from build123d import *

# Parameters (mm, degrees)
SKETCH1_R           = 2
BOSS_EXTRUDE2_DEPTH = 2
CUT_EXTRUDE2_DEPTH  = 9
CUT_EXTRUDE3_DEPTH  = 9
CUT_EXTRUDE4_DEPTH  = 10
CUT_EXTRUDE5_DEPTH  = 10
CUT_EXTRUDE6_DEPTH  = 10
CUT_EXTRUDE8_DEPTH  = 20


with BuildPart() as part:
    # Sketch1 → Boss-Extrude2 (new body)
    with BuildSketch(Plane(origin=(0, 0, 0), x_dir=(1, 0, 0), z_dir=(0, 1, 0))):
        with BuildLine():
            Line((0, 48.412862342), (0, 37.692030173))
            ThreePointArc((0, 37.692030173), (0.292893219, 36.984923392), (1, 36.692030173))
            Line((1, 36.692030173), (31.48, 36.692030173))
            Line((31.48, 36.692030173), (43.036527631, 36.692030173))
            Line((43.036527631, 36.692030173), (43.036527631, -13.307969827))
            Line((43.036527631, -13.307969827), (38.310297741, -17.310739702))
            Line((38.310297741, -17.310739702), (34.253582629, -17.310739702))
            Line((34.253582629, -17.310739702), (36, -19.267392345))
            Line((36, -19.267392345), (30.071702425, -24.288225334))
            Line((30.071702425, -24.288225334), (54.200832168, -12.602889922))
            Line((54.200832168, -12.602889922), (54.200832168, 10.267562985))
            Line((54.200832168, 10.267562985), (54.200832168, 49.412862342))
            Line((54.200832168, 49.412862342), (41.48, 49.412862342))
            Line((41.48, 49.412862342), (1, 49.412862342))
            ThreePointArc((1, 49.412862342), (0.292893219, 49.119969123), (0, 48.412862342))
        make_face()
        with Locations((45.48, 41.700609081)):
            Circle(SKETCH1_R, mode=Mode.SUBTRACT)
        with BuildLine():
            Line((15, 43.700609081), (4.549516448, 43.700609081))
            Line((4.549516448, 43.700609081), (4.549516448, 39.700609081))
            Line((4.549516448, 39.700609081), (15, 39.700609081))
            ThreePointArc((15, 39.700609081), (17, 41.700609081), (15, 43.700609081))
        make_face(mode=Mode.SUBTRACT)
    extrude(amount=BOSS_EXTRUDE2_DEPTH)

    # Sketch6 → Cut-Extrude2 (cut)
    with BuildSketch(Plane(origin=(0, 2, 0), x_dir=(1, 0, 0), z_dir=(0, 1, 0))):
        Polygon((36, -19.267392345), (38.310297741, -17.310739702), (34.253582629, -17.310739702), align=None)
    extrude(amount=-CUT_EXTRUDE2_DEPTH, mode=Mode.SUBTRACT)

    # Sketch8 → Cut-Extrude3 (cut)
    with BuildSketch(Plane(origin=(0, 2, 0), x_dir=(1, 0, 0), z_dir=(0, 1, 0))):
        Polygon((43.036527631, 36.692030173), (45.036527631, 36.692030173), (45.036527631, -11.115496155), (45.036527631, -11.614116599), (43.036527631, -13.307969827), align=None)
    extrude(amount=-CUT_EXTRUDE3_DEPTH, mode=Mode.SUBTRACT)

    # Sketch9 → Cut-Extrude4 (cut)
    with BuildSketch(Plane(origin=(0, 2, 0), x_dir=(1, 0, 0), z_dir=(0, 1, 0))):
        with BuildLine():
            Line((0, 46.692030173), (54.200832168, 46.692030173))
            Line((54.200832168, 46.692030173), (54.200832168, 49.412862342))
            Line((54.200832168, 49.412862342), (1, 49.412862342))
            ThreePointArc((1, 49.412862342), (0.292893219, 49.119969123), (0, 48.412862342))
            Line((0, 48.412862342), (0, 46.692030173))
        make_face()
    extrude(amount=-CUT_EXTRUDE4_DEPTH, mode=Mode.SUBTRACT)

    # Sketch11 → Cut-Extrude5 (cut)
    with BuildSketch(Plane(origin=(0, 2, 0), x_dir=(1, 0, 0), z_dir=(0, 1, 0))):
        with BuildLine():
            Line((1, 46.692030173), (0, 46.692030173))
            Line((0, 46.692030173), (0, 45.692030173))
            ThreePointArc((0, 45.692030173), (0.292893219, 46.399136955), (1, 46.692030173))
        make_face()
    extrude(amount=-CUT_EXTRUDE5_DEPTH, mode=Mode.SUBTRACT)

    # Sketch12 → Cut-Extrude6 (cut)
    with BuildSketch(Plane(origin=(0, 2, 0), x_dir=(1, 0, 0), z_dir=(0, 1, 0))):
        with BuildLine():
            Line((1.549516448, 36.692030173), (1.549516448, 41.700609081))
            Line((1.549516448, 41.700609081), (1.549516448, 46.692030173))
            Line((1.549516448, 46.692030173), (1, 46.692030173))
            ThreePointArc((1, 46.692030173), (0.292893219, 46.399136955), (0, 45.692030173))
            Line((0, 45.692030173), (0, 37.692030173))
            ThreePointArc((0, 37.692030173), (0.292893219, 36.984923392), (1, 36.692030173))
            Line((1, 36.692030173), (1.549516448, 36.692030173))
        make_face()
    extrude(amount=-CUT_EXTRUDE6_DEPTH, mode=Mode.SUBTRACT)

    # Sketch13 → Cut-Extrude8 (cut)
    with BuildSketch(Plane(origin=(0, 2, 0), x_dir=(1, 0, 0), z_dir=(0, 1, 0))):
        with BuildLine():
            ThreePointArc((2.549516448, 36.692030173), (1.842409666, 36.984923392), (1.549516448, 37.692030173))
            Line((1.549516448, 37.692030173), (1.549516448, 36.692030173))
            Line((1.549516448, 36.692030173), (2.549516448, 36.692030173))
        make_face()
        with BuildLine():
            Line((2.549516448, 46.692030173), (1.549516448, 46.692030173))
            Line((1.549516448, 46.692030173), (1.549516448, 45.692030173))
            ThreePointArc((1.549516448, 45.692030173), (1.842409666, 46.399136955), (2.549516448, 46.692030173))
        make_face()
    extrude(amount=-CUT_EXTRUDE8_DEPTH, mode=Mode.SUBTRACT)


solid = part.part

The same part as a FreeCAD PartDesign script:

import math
import FreeCAD as App
import Part
import Sketcher
from FreeCAD import Vector
Q = App.Units.Quantity


def add_polygon(sketch, points):
    """Adds a closed chain of lines whose ends are joined by coincident constraints."""
    first, n = sketch.GeometryCount, len(points)
    for a, b in zip(points, points[1:] + points[:1]):
        sketch.addGeometry(Part.LineSegment(App.Vector(*a, 0), App.Vector(*b, 0)), False)
    for i in range(n):
        sketch.addConstraint(Sketcher.Constraint("Coincident", first + i, 2, first + (i + 1) % n, 1))

doc = App.newDocument("Part")
body = doc.addObject("PartDesign::Body", "Body")

sketch1 = body.newObject("Sketcher::SketchObject", "Sketch")
sketch1.AttachmentSupport = (doc.getObject("XZ_Plane"), [""])
sketch1.MapMode = "FlatFace"
sketch1.addGeometry(Part.LineSegment(Vector(0, -48.4, 0), Vector(0, -37.7, 0)), False)
sketch1.addGeometry(Part.ArcOfCircle(Part.Circle(Vector(1, -37.7, 0), Vector(0, 0, 1), 1), math.radians(90), math.radians(180)), False)
sketch1.addGeometry(Part.LineSegment(Vector(1, -36.7, 0), Vector(43, -36.7, 0)), False)
sketch1.addGeometry(Part.LineSegment(Vector(43, -36.7, 0), Vector(43, 13.3, 0)), False)
sketch1.addGeometry(Part.LineSegment(Vector(43, 13.3, 0), Vector(38.3, 17.3, 0)), False)
sketch1.addGeometry(Part.LineSegment(Vector(38.3, 17.3, 0), Vector(34.3, 17.3, 0)), False)
sketch1.addGeometry(Part.LineSegment(Vector(34.3, 17.3, 0), Vector(36, 19.3, 0)), False)
sketch1.addGeometry(Part.LineSegment(Vector(36, 19.3, 0), Vector(30.1, 24.3, 0)), False)
sketch1.addGeometry(Part.LineSegment(Vector(30.1, 24.3, 0), Vector(54.2, 12.6, 0)), False)
sketch1.addGeometry(Part.LineSegment(Vector(54.2, 12.6, 0), Vector(54.2, -49.4, 0)), False)
sketch1.addGeometry(Part.LineSegment(Vector(54.2, -49.4, 0), Vector(1, -49.4, 0)), False)
sketch1.addGeometry(Part.ArcOfCircle(Part.Circle(Vector(1, -48.4, 0), Vector(0, 0, 1), 1), math.radians(-180), math.radians(-90)), False)
sketch1.addGeometry(Part.LineSegment(Vector(4.5, -43.7, 0), Vector(15, -43.7, 0)), False)
sketch1.addGeometry(Part.ArcOfCircle(Part.Circle(Vector(15, -41.7, 0), Vector(0, 0, 1), 2), math.radians(-90), math.radians(90)), False)
sketch1.addGeometry(Part.LineSegment(Vector(15, -39.7, 0), Vector(4.5, -39.7, 0)), False)
sketch1.addGeometry(Part.LineSegment(Vector(4.5, -39.7, 0), Vector(4.5, -43.7, 0)), False)
sketch1.addGeometry(Part.Circle(Vector(45.5, -41.7, 0), Vector(0, 0, 1), 2), False)
sketch1.addConstraint(Sketcher.Constraint("Tangent", 0, 2, 1, 2))
sketch1.addConstraint(Sketcher.Constraint("Tangent", 1, 1, 2, 1))
sketch1.addConstraint(Sketcher.Constraint("Coincident", 2, 2, 3, 1))
sketch1.addConstraint(Sketcher.Constraint("Coincident", 3, 2, 4, 1))
sketch1.addConstraint(Sketcher.Constraint("Coincident", 4, 2, 5, 1))
sketch1.addConstraint(Sketcher.Constraint("Coincident", 5, 2, 6, 1))
sketch1.addConstraint(Sketcher.Constraint("Coincident", 6, 2, 7, 1))
sketch1.addConstraint(Sketcher.Constraint("Coincident", 7, 2, 8, 1))
sketch1.addConstraint(Sketcher.Constraint("Coincident", 8, 2, 9, 1))
sketch1.addConstraint(Sketcher.Constraint("Coincident", 9, 2, 10, 1))
sketch1.addConstraint(Sketcher.Constraint("Tangent", 10, 2, 11, 2))
sketch1.addConstraint(Sketcher.Constraint("Tangent", 11, 1, 0, 1))
sketch1.addConstraint(Sketcher.Constraint("Tangent", 12, 2, 13, 1))
sketch1.addConstraint(Sketcher.Constraint("Tangent", 13, 2, 14, 1))
sketch1.addConstraint(Sketcher.Constraint("Coincident", 14, 2, 15, 1))
sketch1.addConstraint(Sketcher.Constraint("Coincident", 15, 2, 12, 1))
sketch1.addConstraint(Sketcher.Constraint("Vertical", 0))
sketch1.addConstraint(Sketcher.Constraint("Horizontal", 2))
sketch1.addConstraint(Sketcher.Constraint("Vertical", 3))
sketch1.addConstraint(Sketcher.Constraint("Horizontal", 5))
sketch1.addConstraint(Sketcher.Constraint("Vertical", 9))
sketch1.addConstraint(Sketcher.Constraint("Horizontal", 10))
sketch1.addConstraint(Sketcher.Constraint("Horizontal", 12))
sketch1.addConstraint(Sketcher.Constraint("Horizontal", 14))
sketch1.addConstraint(Sketcher.Constraint("Vertical", 15))
sketch1.addConstraint(Sketcher.Constraint("Equal", 1, 11))
sketch1.addConstraint(Sketcher.Constraint("Equal", 13, 16))
sketch1.addConstraint(Sketcher.Constraint("PointOnObject", 0, 2, -2))
sketch1.addConstraint(Sketcher.Constraint("Parallel", 4, 7))
sketch1.addConstraint(Sketcher.Constraint("Horizontal", 13, 3, 16, 3))
sketch1.addConstraint(Sketcher.Constraint("Diameter", 16, Q("4 mm")))
sketch1.addConstraint(Sketcher.Constraint("Radius", 1, Q("1 mm")))
sketch1.addConstraint(Sketcher.Constraint("DistanceY", 3, 1, 3, 2, Q("50 mm")))
sketch1.addConstraint(Sketcher.Constraint("DistanceX", -1, 1, 13, 3, Q("15 mm")))
sketch1.addConstraint(Sketcher.Constraint("DistanceX", -1, 1, 6, 2, Q("36 mm")))
sketch1.addConstraint(Sketcher.Constraint("DistanceX", -1, 1, 16, 3, Q("45.48 mm")))
sketch1.addConstraint(Sketcher.Constraint("DistanceY", 16, 3, 6, 2, Q("60.968001 mm")))
sketch1.addConstraint(Sketcher.Constraint("Distance", 7, Q("7.76875 mm")))
sketch1.addConstraint(Sketcher.Constraint("DistanceX", 2, 1, 2, 2, Q("42.036528 mm")))
sketch1.addConstraint(Sketcher.Constraint("DistanceX", 5, 2, 5, 1, Q("4.056715 mm")))
sketch1.addConstraint(Sketcher.Constraint("DistanceX", 10, 2, 10, 1, Q("53.200832 mm")))
sketch1.addConstraint(Sketcher.Constraint("DistanceX", 12, 1, 12, 2, Q("10.450484 mm")))
sketch1.addConstraint(Sketcher.Constraint("DistanceY", 0, 1, 0, 2, Q("10.720832 mm")))
sketch1.addConstraint(Sketcher.Constraint("DistanceY", 9, 2, 9, 1, Q("62.015752 mm")))
sketch1.addConstraint(Sketcher.Constraint("DistanceY", 1, 3, -1, 1, Q("37.69203 mm")))
sketch1.addConstraint(Sketcher.Constraint("DistanceY", 13, 3, -1, 1, Q("41.700609 mm")))
sketch1.addConstraint(Sketcher.Constraint("DistanceY", -1, 1, 4, 2, Q("17.31074 mm")))
sketch1.addConstraint(Sketcher.Constraint("DistanceX", 4, 2, 3, 2, Q("4.72623 mm")))
pad1 = body.newObject("PartDesign::Pad", "Pad")
pad1.Profile = sketch1
pad1.Length = 2
pad1.Reversed = True

sketch2 = body.newObject("Sketcher::SketchObject", "Sketch001")
sketch2.AttachmentSupport = (doc.getObject("XZ_Plane"), [""])
sketch2.MapMode = "FlatFace"
sketch2.AttachmentOffset = App.Placement(Vector(0, 0, -2), App.Rotation())
add_polygon(sketch2, [(36, 19.3), (38.3, 17.3), (34.3, 17.3)])
sketch2.addConstraint(Sketcher.Constraint("Horizontal", 1))
sketch2.addConstraint(Sketcher.Constraint("DistanceX", -1, 1, 2, 2, Q("36 mm")))
sketch2.addConstraint(Sketcher.Constraint("DistanceX", 1, 2, 1, 1, Q("4.056715 mm")))
sketch2.addConstraint(Sketcher.Constraint("DistanceY", -1, 1, 0, 2, Q("17.31074 mm")))
sketch2.addConstraint(Sketcher.Constraint("Distance", 0, Q("3.027535 mm")))
sketch2.addConstraint(Sketcher.Constraint("Distance", 2, Q("2.622682 mm")))
pocket1 = body.newObject("PartDesign::Pocket", "Pocket")
pocket1.Profile = sketch2
pocket1.Length = 9
pocket1.Reversed = True

sketch3 = body.newObject("Sketcher::SketchObject", "Sketch002")
sketch3.AttachmentSupport = (doc.getObject("XZ_Plane"), [""])
sketch3.MapMode = "FlatFace"
sketch3.AttachmentOffset = App.Placement(Vector(0, 0, -2), App.Rotation())
add_polygon(sketch3, [(45, -36.7), (43, -36.7), (43, 13.3), (45, 11.6)])
sketch3.addConstraint(Sketcher.Constraint("Horizontal", 0))
sketch3.addConstraint(Sketcher.Constraint("Vertical", 1))
sketch3.addConstraint(Sketcher.Constraint("Vertical", 3))
sketch3.addConstraint(Sketcher.Constraint("DistanceX", 0, 2, 0, 1, Q("2 mm")))
sketch3.addConstraint(Sketcher.Constraint("DistanceY", 1, 1, 1, 2, Q("50 mm")))
sketch3.addConstraint(Sketcher.Constraint("DistanceY", 3, 2, 3, 1, Q("48.306147 mm")))
sketch3.addConstraint(Sketcher.Constraint("DistanceY", 0, 2, -1, 1, Q("36.69203 mm")))
sketch3.addConstraint(Sketcher.Constraint("DistanceX", -1, 1, 0, 2, Q("43.036528 mm")))
pocket2 = body.newObject("PartDesign::Pocket", "Pocket001")
pocket2.Profile = sketch3
pocket2.Length = 9
pocket2.Reversed = True

sketch4 = body.newObject("Sketcher::SketchObject", "Sketch003")
sketch4.AttachmentSupport = (doc.getObject("XZ_Plane"), [""])
sketch4.MapMode = "FlatFace"
sketch4.AttachmentOffset = App.Placement(Vector(0, 0, -2), App.Rotation())
sketch4.addGeometry(Part.LineSegment(Vector(0, -46.7, 0), Vector(54.2, -46.7, 0)), False)
sketch4.addGeometry(Part.LineSegment(Vector(54.2, -46.7, 0), Vector(54.2, -49.4, 0)), False)
sketch4.addGeometry(Part.LineSegment(Vector(54.2, -49.4, 0), Vector(1, -49.4, 0)), False)
sketch4.addGeometry(Part.ArcOfCircle(Part.Circle(Vector(1, -48.4, 0), Vector(0, 0, 1), 1), math.radians(-180), math.radians(-90)), False)
sketch4.addGeometry(Part.LineSegment(Vector(0, -48.4, 0), Vector(0, -46.7, 0)), False)
sketch4.addConstraint(Sketcher.Constraint("Coincident", 0, 2, 1, 1))
sketch4.addConstraint(Sketcher.Constraint("Coincident", 1, 2, 2, 1))
sketch4.addConstraint(Sketcher.Constraint("Tangent", 2, 2, 3, 2))
sketch4.addConstraint(Sketcher.Constraint("Tangent", 3, 1, 4, 1))
sketch4.addConstraint(Sketcher.Constraint("Coincident", 4, 2, 0, 1))
sketch4.addConstraint(Sketcher.Constraint("Horizontal", 0))
sketch4.addConstraint(Sketcher.Constraint("Vertical", 1))
sketch4.addConstraint(Sketcher.Constraint("Horizontal", 2))
sketch4.addConstraint(Sketcher.Constraint("Vertical", 4))
sketch4.addConstraint(Sketcher.Constraint("PointOnObject", 3, 1, -2))
sketch4.addConstraint(Sketcher.Constraint("Radius", 3, Q("1 mm")))
sketch4.addConstraint(Sketcher.Constraint("DistanceX", 0, 1, 0, 2, Q("54.200832 mm")))
sketch4.addConstraint(Sketcher.Constraint("DistanceY", 1, 2, 1, 1, Q("2.720832 mm")))
sketch4.addConstraint(Sketcher.Constraint("DistanceY", 0, 2, -1, 1, Q("46.69203 mm")))
pocket3 = body.newObject("PartDesign::Pocket", "Pocket002")
pocket3.Profile = sketch4
pocket3.Length = 10
pocket3.Reversed = True

sketch5 = body.newObject("Sketcher::SketchObject", "Sketch004")
sketch5.AttachmentSupport = (doc.getObject("XZ_Plane"), [""])
sketch5.MapMode = "FlatFace"
sketch5.AttachmentOffset = App.Placement(Vector(0, 0, -2), App.Rotation())
sketch5.addGeometry(Part.LineSegment(Vector(1, -46.7, 0), Vector(0, -46.7, 0)), False)
sketch5.addGeometry(Part.LineSegment(Vector(0, -46.7, 0), Vector(0, -45.7, 0)), False)
sketch5.addGeometry(Part.ArcOfCircle(Part.Circle(Vector(1, -45.7, 0), Vector(0, 0, 1), 1), math.radians(180), math.radians(270)), False)
sketch5.addConstraint(Sketcher.Constraint("Coincident", 0, 2, 1, 1))
sketch5.addConstraint(Sketcher.Constraint("Tangent", 1, 2, 2, 1))
sketch5.addConstraint(Sketcher.Constraint("Tangent", 2, 2, 0, 1))
sketch5.addConstraint(Sketcher.Constraint("Horizontal", 0))
sketch5.addConstraint(Sketcher.Constraint("Vertical", 1))
sketch5.addConstraint(Sketcher.Constraint("PointOnObject", 0, 2, -2))
sketch5.addConstraint(Sketcher.Constraint("Radius", 2, Q("1 mm")))
sketch5.addConstraint(Sketcher.Constraint("DistanceY", 2, 3, -1, 1, Q("45.69203 mm")))
pocket4 = body.newObject("PartDesign::Pocket", "Pocket003")
pocket4.Profile = sketch5
pocket4.Length = 10
pocket4.Reversed = True

sketch6 = body.newObject("Sketcher::SketchObject", "Sketch005")
sketch6.AttachmentSupport = (doc.getObject("XZ_Plane"), [""])
sketch6.MapMode = "FlatFace"
sketch6.AttachmentOffset = App.Placement(Vector(0, 0, -2), App.Rotation())
sketch6.addGeometry(Part.LineSegment(Vector(1.5, -36.7, 0), Vector(1.5, -46.7, 0)), False)
sketch6.addGeometry(Part.LineSegment(Vector(1.5, -46.7, 0), Vector(1, -46.7, 0)), False)
sketch6.addGeometry(Part.ArcOfCircle(Part.Circle(Vector(1, -45.7, 0), Vector(0, 0, 1), 1), math.radians(180), math.radians(270)), False)
sketch6.addGeometry(Part.LineSegment(Vector(0, -45.7, 0), Vector(0, -37.7, 0)), False)
sketch6.addGeometry(Part.ArcOfCircle(Part.Circle(Vector(1, -37.7, 0), Vector(0, 0, 1), 1), math.radians(90), math.radians(180)), False)
sketch6.addGeometry(Part.LineSegment(Vector(1, -36.7, 0), Vector(1.5, -36.7, 0)), False)
sketch6.addConstraint(Sketcher.Constraint("Coincident", 0, 2, 1, 1))
sketch6.addConstraint(Sketcher.Constraint("Tangent", 1, 2, 2, 2))
sketch6.addConstraint(Sketcher.Constraint("Tangent", 2, 1, 3, 1))
sketch6.addConstraint(Sketcher.Constraint("Tangent", 3, 2, 4, 2))
sketch6.addConstraint(Sketcher.Constraint("Tangent", 4, 1, 5, 1))
sketch6.addConstraint(Sketcher.Constraint("Coincident", 5, 2, 0, 1))
sketch6.addConstraint(Sketcher.Constraint("Vertical", 0))
sketch6.addConstraint(Sketcher.Constraint("Horizontal", 1))
sketch6.addConstraint(Sketcher.Constraint("Vertical", 3))
sketch6.addConstraint(Sketcher.Constraint("Horizontal", 5))
sketch6.addConstraint(Sketcher.Constraint("Equal", 2, 4))
sketch6.addConstraint(Sketcher.Constraint("PointOnObject", 2, 1, -2))
sketch6.addConstraint(Sketcher.Constraint("Radius", 2, Q("1 mm")))
sketch6.addConstraint(Sketcher.Constraint("DistanceY", 0, 2, 0, 1, Q("10 mm")))
sketch6.addConstraint(Sketcher.Constraint("DistanceX", 1, 2, 1, 1, Q("0.549516 mm")))
sketch6.addConstraint(Sketcher.Constraint("DistanceY", 2, 3, -1, 1, Q("45.69203 mm")))
pocket5 = body.newObject("PartDesign::Pocket", "Pocket004")
pocket5.Profile = sketch6
pocket5.Length = 10
pocket5.Reversed = True

sketch7 = body.newObject("Sketcher::SketchObject", "Sketch006")
sketch7.AttachmentSupport = (doc.getObject("XZ_Plane"), [""])
sketch7.MapMode = "FlatFace"
sketch7.AttachmentOffset = App.Placement(Vector(0, 0, -2), App.Rotation())
sketch7.addGeometry(Part.ArcOfCircle(Part.Circle(Vector(2.5, -37.7, 0), Vector(0, 0, 1), 1), math.radians(90), math.radians(180)), False)
sketch7.addGeometry(Part.LineSegment(Vector(1.5, -37.7, 0), Vector(1.5, -36.7, 0)), False)
sketch7.addGeometry(Part.LineSegment(Vector(1.5, -36.7, 0), Vector(2.5, -36.7, 0)), False)
sketch7.addGeometry(Part.LineSegment(Vector(2.5, -46.7, 0), Vector(1.5, -46.7, 0)), False)
sketch7.addGeometry(Part.LineSegment(Vector(1.5, -46.7, 0), Vector(1.5, -45.7, 0)), False)
sketch7.addGeometry(Part.ArcOfCircle(Part.Circle(Vector(2.5, -45.7, 0), Vector(0, 0, 1), 1), math.radians(180), math.radians(270)), False)
sketch7.addConstraint(Sketcher.Constraint("Tangent", 0, 2, 1, 1))
sketch7.addConstraint(Sketcher.Constraint("Coincident", 1, 2, 2, 1))
sketch7.addConstraint(Sketcher.Constraint("Tangent", 2, 2, 0, 1))
sketch7.addConstraint(Sketcher.Constraint("Coincident", 3, 2, 4, 1))
sketch7.addConstraint(Sketcher.Constraint("Tangent", 4, 2, 5, 1))
sketch7.addConstraint(Sketcher.Constraint("Tangent", 5, 2, 3, 1))
sketch7.addConstraint(Sketcher.Constraint("Vertical", 1))
sketch7.addConstraint(Sketcher.Constraint("Horizontal", 2))
sketch7.addConstraint(Sketcher.Constraint("Horizontal", 3))
sketch7.addConstraint(Sketcher.Constraint("Vertical", 4))
sketch7.addConstraint(Sketcher.Constraint("Equal", 0, 5))
sketch7.addConstraint(Sketcher.Constraint("Vertical", 0, 3, 5, 3))
sketch7.addConstraint(Sketcher.Constraint("Radius", 0, Q("1 mm")))
sketch7.addConstraint(Sketcher.Constraint("DistanceY", 5, 3, 0, 3, Q("8 mm")))
sketch7.addConstraint(Sketcher.Constraint("DistanceY", 0, 3, -1, 1, Q("37.69203 mm")))
sketch7.addConstraint(Sketcher.Constraint("DistanceX", -1, 1, 0, 3, Q("2.549516 mm")))
pocket6 = body.newObject("PartDesign::Pocket", "Pocket005")
pocket6.Profile = sketch7
pocket6.Length = 20
pocket6.Reversed = True

doc.recompute()
